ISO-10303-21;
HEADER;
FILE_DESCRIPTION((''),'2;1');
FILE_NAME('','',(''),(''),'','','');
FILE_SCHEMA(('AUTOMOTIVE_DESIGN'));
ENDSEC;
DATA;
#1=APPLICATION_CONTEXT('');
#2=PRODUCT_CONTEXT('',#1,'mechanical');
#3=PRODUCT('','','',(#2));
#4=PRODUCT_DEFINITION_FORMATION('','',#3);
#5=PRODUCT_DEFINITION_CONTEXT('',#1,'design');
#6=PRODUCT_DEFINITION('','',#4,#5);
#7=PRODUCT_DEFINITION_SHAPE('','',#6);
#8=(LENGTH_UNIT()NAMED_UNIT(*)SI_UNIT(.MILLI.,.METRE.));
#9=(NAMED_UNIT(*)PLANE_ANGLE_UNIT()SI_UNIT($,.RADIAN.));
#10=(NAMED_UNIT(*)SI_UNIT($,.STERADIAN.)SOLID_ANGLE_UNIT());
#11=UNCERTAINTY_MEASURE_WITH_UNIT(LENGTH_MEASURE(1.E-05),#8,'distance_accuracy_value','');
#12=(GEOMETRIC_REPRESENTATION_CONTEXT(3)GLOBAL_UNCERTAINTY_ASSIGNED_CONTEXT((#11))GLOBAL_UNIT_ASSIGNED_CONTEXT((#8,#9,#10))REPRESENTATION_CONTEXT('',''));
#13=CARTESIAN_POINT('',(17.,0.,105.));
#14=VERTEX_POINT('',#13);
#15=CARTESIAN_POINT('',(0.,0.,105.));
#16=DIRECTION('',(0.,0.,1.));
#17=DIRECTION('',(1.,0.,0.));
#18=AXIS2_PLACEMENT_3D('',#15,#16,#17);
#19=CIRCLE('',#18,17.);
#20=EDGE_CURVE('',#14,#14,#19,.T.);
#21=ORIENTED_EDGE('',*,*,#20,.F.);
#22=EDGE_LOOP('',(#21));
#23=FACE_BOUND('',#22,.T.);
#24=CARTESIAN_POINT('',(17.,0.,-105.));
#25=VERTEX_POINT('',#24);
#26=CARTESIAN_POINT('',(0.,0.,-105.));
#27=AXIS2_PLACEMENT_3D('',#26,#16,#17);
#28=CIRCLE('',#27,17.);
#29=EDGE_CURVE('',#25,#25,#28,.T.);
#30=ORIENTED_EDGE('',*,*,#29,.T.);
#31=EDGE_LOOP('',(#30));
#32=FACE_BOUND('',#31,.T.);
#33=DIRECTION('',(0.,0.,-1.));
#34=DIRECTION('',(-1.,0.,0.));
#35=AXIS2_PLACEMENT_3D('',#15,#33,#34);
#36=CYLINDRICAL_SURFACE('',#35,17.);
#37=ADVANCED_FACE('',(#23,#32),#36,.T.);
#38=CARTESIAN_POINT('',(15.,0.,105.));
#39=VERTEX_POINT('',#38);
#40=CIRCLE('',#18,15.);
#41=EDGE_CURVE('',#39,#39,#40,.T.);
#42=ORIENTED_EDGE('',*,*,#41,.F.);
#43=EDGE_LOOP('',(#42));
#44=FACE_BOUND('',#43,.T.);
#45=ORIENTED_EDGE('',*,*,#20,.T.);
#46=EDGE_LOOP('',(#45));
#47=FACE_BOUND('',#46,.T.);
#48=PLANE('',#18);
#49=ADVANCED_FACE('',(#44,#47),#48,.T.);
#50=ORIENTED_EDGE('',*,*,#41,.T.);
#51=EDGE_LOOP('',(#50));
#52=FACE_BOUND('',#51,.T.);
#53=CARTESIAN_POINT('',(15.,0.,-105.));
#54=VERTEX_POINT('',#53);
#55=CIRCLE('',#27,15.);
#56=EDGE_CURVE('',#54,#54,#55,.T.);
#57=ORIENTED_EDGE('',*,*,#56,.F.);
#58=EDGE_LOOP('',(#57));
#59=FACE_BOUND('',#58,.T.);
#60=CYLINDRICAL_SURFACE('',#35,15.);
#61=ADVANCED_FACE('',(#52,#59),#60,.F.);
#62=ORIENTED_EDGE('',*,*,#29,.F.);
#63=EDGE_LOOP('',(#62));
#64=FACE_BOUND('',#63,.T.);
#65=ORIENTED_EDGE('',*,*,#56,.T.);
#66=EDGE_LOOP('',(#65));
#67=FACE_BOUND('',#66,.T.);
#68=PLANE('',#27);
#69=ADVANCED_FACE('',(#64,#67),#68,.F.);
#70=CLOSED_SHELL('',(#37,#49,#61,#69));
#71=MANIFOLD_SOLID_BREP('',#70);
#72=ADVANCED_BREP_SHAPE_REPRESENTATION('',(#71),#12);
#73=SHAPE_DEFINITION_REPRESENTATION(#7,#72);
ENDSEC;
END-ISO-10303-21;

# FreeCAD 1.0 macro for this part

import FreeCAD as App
import Part
import Sketcher
from FreeCAD import Vector
Q = App.Units.Quantity

doc = App.newDocument("Part")
params = doc.addObject("Spreadsheet::Sheet", "Params")
for row, (alias, value) in enumerate([
    ("sketch1_diameter", "34 mm"),
    ("sketch1_diameter2", "30 mm"),
    ("pad1_length", "210 mm"),
], start=1):
    params.set(f"A{row}", alias)
    params.set(f"B{row}", "=" + value)
    params.setAlias(f"B{row}", alias)

body = doc.addObject("PartDesign::Body", "Body")

# Sketch on XY plane
sketch1 = body.newObject("Sketcher::SketchObject", "Sketch")
sketch1.AttachmentSupport = (doc.getObject("XY_Plane"), [""])
sketch1.MapMode = "FlatFace"
sketch1.addGeometry(Part.Circle(Vector(0, 0, 0), Vector(0, 0, 1), 17), False)
sketch1.addGeometry(Part.Circle(Vector(0, 0, 0), Vector(0, 0, 1), 15), False)
sketch1.addConstraint(Sketcher.Constraint("Coincident", 0, 3, -1, 1))
sketch1.addConstraint(Sketcher.Constraint("Coincident", 1, 3, -1, 1))
sketch1.addConstraint(Sketcher.Constraint("Diameter", 0, Q("34 mm")))
sketch1.addConstraint(Sketcher.Constraint("Diameter", 1, Q("30 mm")))
sketch1.setExpression("Constraints[2]", "Params.sketch1_diameter")
sketch1.setExpression("Constraints[3]", "Params.sketch1_diameter2")
pad1 = body.newObject("PartDesign::Pad", "Pad")
pad1.Profile = sketch1
pad1.setExpression("Length", "Params.pad1_length")
pad1.Midplane = True

doc.recompute()
